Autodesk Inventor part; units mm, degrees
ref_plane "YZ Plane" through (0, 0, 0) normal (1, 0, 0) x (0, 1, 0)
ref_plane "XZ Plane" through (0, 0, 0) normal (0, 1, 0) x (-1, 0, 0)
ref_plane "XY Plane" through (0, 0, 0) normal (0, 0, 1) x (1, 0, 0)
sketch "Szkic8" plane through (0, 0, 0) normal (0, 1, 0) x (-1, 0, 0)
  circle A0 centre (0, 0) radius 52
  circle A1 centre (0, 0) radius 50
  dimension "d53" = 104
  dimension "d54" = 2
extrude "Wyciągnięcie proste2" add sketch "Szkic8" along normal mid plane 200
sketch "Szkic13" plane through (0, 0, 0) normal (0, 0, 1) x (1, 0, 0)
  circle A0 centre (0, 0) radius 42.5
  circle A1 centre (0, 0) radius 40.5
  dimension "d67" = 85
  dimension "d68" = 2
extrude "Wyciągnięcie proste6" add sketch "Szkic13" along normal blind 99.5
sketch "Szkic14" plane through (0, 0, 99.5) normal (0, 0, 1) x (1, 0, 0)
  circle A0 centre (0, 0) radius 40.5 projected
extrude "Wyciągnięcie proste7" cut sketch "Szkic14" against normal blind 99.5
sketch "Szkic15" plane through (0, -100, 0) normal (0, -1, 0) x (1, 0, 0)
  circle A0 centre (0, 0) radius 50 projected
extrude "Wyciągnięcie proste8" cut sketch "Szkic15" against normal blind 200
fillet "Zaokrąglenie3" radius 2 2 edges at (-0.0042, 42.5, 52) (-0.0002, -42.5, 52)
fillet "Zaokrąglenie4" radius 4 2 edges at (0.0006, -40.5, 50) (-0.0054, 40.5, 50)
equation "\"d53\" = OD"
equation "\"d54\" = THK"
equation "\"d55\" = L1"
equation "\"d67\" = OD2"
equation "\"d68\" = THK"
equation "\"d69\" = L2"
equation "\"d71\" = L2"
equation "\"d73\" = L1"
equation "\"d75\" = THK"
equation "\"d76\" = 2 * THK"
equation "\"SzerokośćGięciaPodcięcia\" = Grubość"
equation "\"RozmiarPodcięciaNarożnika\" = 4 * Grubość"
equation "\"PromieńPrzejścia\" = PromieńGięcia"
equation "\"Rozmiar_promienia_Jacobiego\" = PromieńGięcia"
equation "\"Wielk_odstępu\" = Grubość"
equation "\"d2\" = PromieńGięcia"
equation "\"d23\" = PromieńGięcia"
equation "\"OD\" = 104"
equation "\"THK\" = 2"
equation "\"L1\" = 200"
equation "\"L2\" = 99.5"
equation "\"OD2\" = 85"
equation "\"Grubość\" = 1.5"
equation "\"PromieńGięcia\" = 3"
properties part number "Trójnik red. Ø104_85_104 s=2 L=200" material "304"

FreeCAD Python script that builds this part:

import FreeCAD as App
import Part
import Sketcher
Q = App.Units.Quantity


def edges_at(feature, points):
    """Names of the edges that pass closest to the given points."""
    edges = feature.Shape.Edges
    near = lambda p: min(range(len(edges)), key=lambda i: edges[i].distToShape(Part.Vertex(*p))[0])
    return sorted({f"Edge{near(p) + 1}" for p in points})

doc = App.newDocument("Part")
body = doc.addObject("PartDesign::Body", "Body")

# Sketch on XZ plane
sketch1 = doc.addObject("Sketcher::SketchObject", "Sketch")
body.addObject(sketch1)
sketch1.AttachmentSupport = (doc.XZ_Plane, [""])
sketch1.MapMode = "FlatFace"
sketch1.addGeometry(Part.Circle(App.Vector(0, 0, 0), App.Vector(0, 0, 1), 52), False)
sketch1.addGeometry(Part.Circle(App.Vector(0, 0, 0), App.Vector(0, 0, 1), 50), False)
sketch1.addConstraint(Sketcher.Constraint("Coincident", 0, 3, -1, 1))
sketch1.addConstraint(Sketcher.Constraint("Coincident", 1, 3, -1, 1))
sketch1.addConstraint(Sketcher.Constraint("Diameter", 0, Q("104 mm")))
sketch1.addConstraint(Sketcher.Constraint("Diameter", 1, Q("100 mm")))
pad1 = doc.addObject("PartDesign::Pad", "Pad")
body.addObject(pad1)
pad1.Profile = sketch1
pad1.Length = 200
pad1.Midplane = True

# Sketch on XY plane
sketch2 = doc.addObject("Sketcher::SketchObject", "Sketch001")
body.addObject(sketch2)
sketch2.AttachmentSupport = (doc.XY_Plane, [""])
sketch2.MapMode = "FlatFace"
sketch2.addGeometry(Part.Circle(App.Vector(0, 0, 0), App.Vector(0, 0, 1), 42.5), False)
sketch2.addGeometry(Part.Circle(App.Vector(0, 0, 0), App.Vector(0, 0, 1), 40.5), False)
sketch2.addConstraint(Sketcher.Constraint("Coincident", 0, 3, -1, 1))
sketch2.addConstraint(Sketcher.Constraint("Coincident", 1, 3, -1, 1))
sketch2.addConstraint(Sketcher.Constraint("Diameter", 0, Q("85 mm")))
sketch2.addConstraint(Sketcher.Constraint("Diameter", 1, Q("81 mm")))
pad2 = doc.addObject("PartDesign::Pad", "Pad001")
body.addObject(pad2)
pad2.Profile = sketch2
pad2.Length = 99.5

# Sketch on XY plane
sketch3 = doc.addObject("Sketcher::SketchObject", "Sketch002")
body.addObject(sketch3)
sketch3.AttachmentSupport = (doc.XY_Plane, [""])
sketch3.MapMode = "FlatFace"
sketch3.AttachmentOffset = App.Placement(App.Vector(0, 0, 99.5), App.Rotation())
sketch3.addGeometry(Part.Circle(App.Vector(0, 0, 0), App.Vector(0, 0, 1), 40.5), False)
sketch3.addConstraint(Sketcher.Constraint("Coincident", 0, 3, -1, 1))
sketch3.addConstraint(Sketcher.Constraint("Diameter", 0, Q("81 mm")))
pocket1 = doc.addObject("PartDesign::Pocket", "Pocket")
body.addObject(pocket1)
pocket1.Profile = sketch3
pocket1.Length = 99.5

# Sketch on XZ plane
sketch4 = doc.addObject("Sketcher::SketchObject", "Sketch003")
body.addObject(sketch4)
sketch4.AttachmentSupport = (doc.XZ_Plane, [""])
sketch4.MapMode = "FlatFace"
sketch4.AttachmentOffset = App.Placement(App.Vector(0, 0, 100), App.Rotation())
sketch4.addGeometry(Part.Circle(App.Vector(0, 0, 0), App.Vector(0, 0, 1), 50), False)
sketch4.addConstraint(Sketcher.Constraint("Coincident", 0, 3, -1, 1))
sketch4.addConstraint(Sketcher.Constraint("Diameter", 0, Q("100 mm")))
pocket2 = doc.addObject("PartDesign::Pocket", "Pocket001")
body.addObject(pocket2)
pocket2.Profile = sketch4
pocket2.Length = 200
doc.recompute()

fillet = doc.addObject("PartDesign::Fillet", "Fillet")
body.addObject(fillet)
fillet.Base = (pocket2, edges_at(pocket2, [(-0.004, 42.5, 52), (0, -42.5, 52)]))
fillet.Radius = 2
doc.recompute()

fillet2 = doc.addObject("PartDesign::Fillet", "Fillet001")
body.addObject(fillet2)
fillet2.Base = (fillet, edges_at(fillet, [(0.001, -40.5, 50), (-0.005, 40.5, 50)]))
fillet2.Radius = 4

doc.recompute()
